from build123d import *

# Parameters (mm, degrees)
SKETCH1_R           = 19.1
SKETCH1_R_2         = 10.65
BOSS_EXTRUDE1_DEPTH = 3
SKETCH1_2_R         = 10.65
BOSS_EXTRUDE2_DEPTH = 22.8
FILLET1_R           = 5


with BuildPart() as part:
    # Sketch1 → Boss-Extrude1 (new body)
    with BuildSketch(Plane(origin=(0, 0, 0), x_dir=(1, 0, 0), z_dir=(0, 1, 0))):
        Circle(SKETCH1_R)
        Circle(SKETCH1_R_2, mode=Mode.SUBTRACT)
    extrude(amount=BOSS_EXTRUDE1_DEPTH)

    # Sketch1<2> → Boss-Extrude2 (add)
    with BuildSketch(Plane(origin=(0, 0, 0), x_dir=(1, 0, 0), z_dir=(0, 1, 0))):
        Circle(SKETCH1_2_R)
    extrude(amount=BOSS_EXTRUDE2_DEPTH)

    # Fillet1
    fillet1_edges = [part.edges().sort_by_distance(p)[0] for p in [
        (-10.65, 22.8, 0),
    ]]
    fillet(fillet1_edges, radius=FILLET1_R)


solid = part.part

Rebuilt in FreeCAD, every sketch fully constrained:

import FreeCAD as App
import Part
import Sketcher
from FreeCAD import Vector


def edges_at(feature, points):
    """Names of the edges that pass closest to the given points."""
    edges = feature.Shape.Edges
    near = lambda p: min(range(len(edges)), key=lambda i: edges[i].distToShape(Part.Vertex(*p))[0])
    return sorted({f"Edge{near(p) + 1}" for p in points})

doc = App.newDocument("Part")
body = doc.addObject("PartDesign::Body", "Body")

# Sketch on XZ plane
sketch1 = doc.addObject("Sketcher::SketchObject", "Sketch")
body.addObject(sketch1)
sketch1.AttachmentSupport = (doc.XZ_Plane, [""])
sketch1.MapMode = "FlatFace"
sketch1.addGeometry(Part.Circle(Vector(0, 0, 0), Vector(0, 0, 1), 19), False)
sketch1.addGeometry(Part.Circle(Vector(0, 0, 0), Vector(0, 0, 1), 11), False)
sketch1.addConstraint(Sketcher.Constraint("Coincident", 0, 3, -1, 1))
sketch1.addConstraint(Sketcher.Constraint("Coincident", 1, 3, -1, 1))
sketch1.addConstraint(Sketcher.Constraint("Diameter", 0, 38.2))
sketch1.addConstraint(Sketcher.Constraint("Diameter", 1, 21.3))
pad1 = doc.addObject("PartDesign::Pad", "Pad")
body.addObject(pad1)
pad1.Profile = sketch1
pad1.Length = 3
pad1.Reversed = True

# Sketch on XZ plane
sketch2 = doc.addObject("Sketcher::SketchObject", "Sketch001")
body.addObject(sketch2)
sketch2.AttachmentSupport = (doc.XZ_Plane, [""])
sketch2.MapMode = "FlatFace"
sketch2.addGeometry(Part.Circle(Vector(0, 0, 0), Vector(0, 0, 1), 11), False)
sketch2.addConstraint(Sketcher.Constraint("Coincident", 0, 3, -1, 1))
sketch2.addConstraint(Sketcher.Constraint("Diameter", 0, 21.3))
pad2 = doc.addObject("PartDesign::Pad", "Pad001")
body.addObject(pad2)
pad2.Profile = sketch2
pad2.Length = 22.8
pad2.Reversed = True
doc.recompute()

fillet = doc.addObject("PartDesign::Fillet", "Fillet")
body.addObject(fillet)
fillet.Base = (pad2, edges_at(pad2, [(-10.65, 22.8, 0)]))
fillet.Radius = 5

doc.recompute()
